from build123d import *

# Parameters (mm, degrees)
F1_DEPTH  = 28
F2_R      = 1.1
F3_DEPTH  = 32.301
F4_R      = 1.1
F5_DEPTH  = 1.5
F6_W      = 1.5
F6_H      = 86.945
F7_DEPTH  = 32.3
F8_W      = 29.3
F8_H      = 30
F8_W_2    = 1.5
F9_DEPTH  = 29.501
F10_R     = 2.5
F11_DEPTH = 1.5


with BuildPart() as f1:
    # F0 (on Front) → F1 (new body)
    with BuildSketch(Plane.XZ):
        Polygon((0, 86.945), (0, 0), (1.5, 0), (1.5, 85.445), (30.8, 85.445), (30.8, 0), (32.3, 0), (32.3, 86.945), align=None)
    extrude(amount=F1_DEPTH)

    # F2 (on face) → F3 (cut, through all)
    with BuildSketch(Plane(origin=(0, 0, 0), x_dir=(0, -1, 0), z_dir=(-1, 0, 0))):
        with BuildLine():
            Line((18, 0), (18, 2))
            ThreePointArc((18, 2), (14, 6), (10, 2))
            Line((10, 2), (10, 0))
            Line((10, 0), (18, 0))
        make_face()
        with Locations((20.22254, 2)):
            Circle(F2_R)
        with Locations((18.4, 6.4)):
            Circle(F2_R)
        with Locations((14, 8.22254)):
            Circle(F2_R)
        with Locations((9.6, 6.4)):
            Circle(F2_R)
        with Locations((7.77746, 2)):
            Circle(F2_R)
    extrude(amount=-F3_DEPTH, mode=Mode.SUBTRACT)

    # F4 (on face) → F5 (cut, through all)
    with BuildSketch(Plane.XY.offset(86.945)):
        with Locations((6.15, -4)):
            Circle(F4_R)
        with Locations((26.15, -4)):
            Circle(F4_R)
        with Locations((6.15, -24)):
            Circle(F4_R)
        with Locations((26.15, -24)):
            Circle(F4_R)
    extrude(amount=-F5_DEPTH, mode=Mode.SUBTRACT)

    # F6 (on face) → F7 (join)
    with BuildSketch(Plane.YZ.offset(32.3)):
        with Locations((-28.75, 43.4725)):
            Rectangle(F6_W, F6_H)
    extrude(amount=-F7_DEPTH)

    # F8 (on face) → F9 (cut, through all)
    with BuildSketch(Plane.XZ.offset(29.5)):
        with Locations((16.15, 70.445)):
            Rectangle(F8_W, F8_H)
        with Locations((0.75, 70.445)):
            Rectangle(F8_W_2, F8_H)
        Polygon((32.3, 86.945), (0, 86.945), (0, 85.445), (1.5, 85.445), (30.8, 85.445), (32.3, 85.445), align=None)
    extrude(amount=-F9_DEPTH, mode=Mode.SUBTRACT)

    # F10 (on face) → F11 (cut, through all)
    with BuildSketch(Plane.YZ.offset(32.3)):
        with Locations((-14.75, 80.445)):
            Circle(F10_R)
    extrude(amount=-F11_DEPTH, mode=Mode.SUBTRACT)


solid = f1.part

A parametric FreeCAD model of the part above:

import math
import FreeCAD as App
import Part
import Sketcher


def add_polygon(sketch, points):
    """Adds a closed chain of lines whose ends are joined by coincident constraints."""
    first, n = sketch.GeometryCount, len(points)
    for a, b in zip(points, points[1:] + points[:1]):
        sketch.addGeometry(Part.LineSegment(App.Vector(*a, 0), App.Vector(*b, 0)), False)
    for i in range(n):
        sketch.addConstraint(Sketcher.Constraint("Coincident", first + i, 2, first + (i + 1) % n, 1))

doc = App.newDocument("Part")
body = doc.addObject("PartDesign::Body", "Body")

sketch1 = doc.addObject("Sketcher::SketchObject", "Sketch")
body.addObject(sketch1)
sketch1.AttachmentSupport = (doc.XZ_Plane, [""])
sketch1.MapMode = "FlatFace"
add_polygon(sketch1, [(0, 86.9), (0, 0), (1.5, 0), (1.5, 85.4), (30.8, 85.4), (30.8, 0), (32.3, 0), (32.3, 86.9)])
sketch1.addConstraint(Sketcher.Constraint("Vertical", 0))
sketch1.addConstraint(Sketcher.Constraint("Horizontal", 1))
sketch1.addConstraint(Sketcher.Constraint("Vertical", 2))
sketch1.addConstraint(Sketcher.Constraint("Horizontal", 3))
sketch1.addConstraint(Sketcher.Constraint("Vertical", 4))
sketch1.addConstraint(Sketcher.Constraint("Horizontal", 5))
sketch1.addConstraint(Sketcher.Constraint("Vertical", 6))
sketch1.addConstraint(Sketcher.Constraint("Horizontal", 7))
sketch1.addConstraint(Sketcher.Constraint("Coincident", 0, 2, -1, 1))
sketch1.addConstraint(Sketcher.Constraint("PointOnObject", 4, 2, -1))
sketch1.addConstraint(Sketcher.Constraint("Equal", 1, 5))
sketch1.addConstraint(Sketcher.Constraint("DistanceX", 1, 1, 1, 2, 1.5))
sketch1.addConstraint(Sketcher.Constraint("DistanceX", 3, 1, 3, 2, 29.3))
sketch1.addConstraint(Sketcher.Constraint("DistanceY", 3, 2, 6, 2, 1.5))
sketch1.addConstraint(Sketcher.Constraint("DistanceY", 0, 2, 0, 1, 86.945))
pad1 = doc.addObject("PartDesign::Pad", "Pad")
body.addObject(pad1)
pad1.Profile = sketch1
pad1.Length = 28

sketch2 = doc.addObject("Sketcher::SketchObject", "Sketch001")
body.addObject(sketch2)
sketch2.AttachmentSupport = (doc.YZ_Plane, [""])
sketch2.MapMode = "FlatFace"
sketch2.addGeometry(Part.LineSegment(App.Vector(-18, 0, 0), App.Vector(-18, 2, 0)), False)
sketch2.addGeometry(Part.ArcOfCircle(Part.Circle(App.Vector(-14, 2, 0), App.Vector(0, 0, 1), 4), math.radians(0), math.radians(180)), False)
sketch2.addGeometry(Part.LineSegment(App.Vector(-10, 2, 0), App.Vector(-10, 0, 0)), False)
sketch2.addGeometry(Part.LineSegment(App.Vector(-10, 0, 0), App.Vector(-18, 0, 0)), False)
sketch2.addGeometry(Part.Circle(App.Vector(-20.2, 2, 0), App.Vector(0, 0, 1), 1.1), False)
sketch2.addGeometry(Part.Circle(App.Vector(-18.4, 6.4, 0), App.Vector(0, 0, 1), 1.1), False)
sketch2.addGeometry(Part.Circle(App.Vector(-14, 8.2, 0), App.Vector(0, 0, 1), 1.1), False)
sketch2.addGeometry(Part.Circle(App.Vector(-9.6, 6.4, 0), App.Vector(0, 0, 1), 1.1), False)
sketch2.addGeometry(Part.Circle(App.Vector(-7.8, 2, 0), App.Vector(0, 0, 1), 1.1), False)
sketch2.addConstraint(Sketcher.Constraint("Tangent", 0, 2, 1, 2))
sketch2.addConstraint(Sketcher.Constraint("Tangent", 1, 1, 2, 1))
sketch2.addConstraint(Sketcher.Constraint("Coincident", 2, 2, 3, 1))
sketch2.addConstraint(Sketcher.Constraint("Coincident", 3, 2, 0, 1))
sketch2.addConstraint(Sketcher.Constraint("Vertical", 0))
sketch2.addConstraint(Sketcher.Constraint("Vertical", 2))
sketch2.addConstraint(Sketcher.Constraint("Horizontal", 3))
sketch2.addConstraint(Sketcher.Constraint("Equal", 4, 5))
sketch2.addConstraint(Sketcher.Constraint("Equal", 5, 6))
sketch2.addConstraint(Sketcher.Constraint("Equal", 6, 7))
sketch2.addConstraint(Sketcher.Constraint("Equal", 7, 8))
sketch2.addConstraint(Sketcher.Constraint("PointOnObject", 2, 2, -1))
sketch2.addConstraint(Sketcher.Constraint("Horizontal", 1, 3, 4, 3))
sketch2.addConstraint(Sketcher.Constraint("Horizontal", 5, 3, 7, 3))
sketch2.addConstraint(Sketcher.Constraint("Horizontal", 4, 3, 8, 3))
sketch2.addConstraint(Sketcher.Constraint("Vertical", 1, 3, 6, 3))
sketch2.addConstraint(Sketcher.Constraint("Radius", 1, 4.0))
sketch2.addConstraint(Sketcher.Constraint("Diameter", 4, 2.2))
sketch2.addConstraint(Sketcher.Constraint("DistanceY", 0, 1, 0, 2, 2.0))
sketch2.addConstraint(Sketcher.Constraint("DistanceX", 1, 3, -1, 1, 14.0))
sketch2.addConstraint(Sketcher.Constraint("DistanceX", 5, 3, -1, 1, 18.4))
sketch2.addConstraint(Sketcher.Constraint("DistanceY", -1, 1, 5, 3, 6.4))
sketch2.addConstraint(Sketcher.Constraint("DistanceX", 7, 3, -1, 1, 9.6))
sketch2.addConstraint(Sketcher.Constraint("DistanceX", 4, 3, -1, 1, 20.22254))
sketch2.addConstraint(Sketcher.Constraint("DistanceY", -1, 1, 6, 3, 8.22254))
sketch2.addConstraint(Sketcher.Constraint("DistanceX", 8, 3, -1, 1, 7.77746))
pocket1 = doc.addObject("PartDesign::Pocket", "Pocket")
body.addObject(pocket1)
pocket1.Profile = sketch2
pocket1.Type = "ThroughAll"
pocket1.Reversed = True

sketch3 = doc.addObject("Sketcher::SketchObject", "Sketch002")
body.addObject(sketch3)
sketch3.AttachmentSupport = (doc.XY_Plane, [""])
sketch3.MapMode = "FlatFace"
sketch3.AttachmentOffset = App.Placement(App.Vector(0, 0, 86.945), App.Rotation())
sketch3.addGeometry(Part.Circle(App.Vector(6.2, -4, 0), App.Vector(0, 0, 1), 1.1), False)
sketch3.addGeometry(Part.Circle(App.Vector(26.1, -4, 0), App.Vector(0, 0, 1), 1.1), False)
sketch3.addGeometry(Part.Circle(App.Vector(6.2, -24, 0), App.Vector(0, 0, 1), 1.1), False)
sketch3.addGeometry(Part.Circle(App.Vector(26.1, -24, 0), App.Vector(0, 0, 1), 1.1), False)
sketch3.addConstraint(Sketcher.Constraint("Equal", 0, 1))
sketch3.addConstraint(Sketcher.Constraint("Equal", 1, 2))
sketch3.addConstraint(Sketcher.Constraint("Equal", 2, 3))
sketch3.addConstraint(Sketcher.Constraint("Horizontal", 0, 3, 1, 3))
sketch3.addConstraint(Sketcher.Constraint("Horizontal", 2, 3, 3, 3))
sketch3.addConstraint(Sketcher.Constraint("Vertical", 0, 3, 2, 3))
sketch3.addConstraint(Sketcher.Constraint("Vertical", 1, 3, 3, 3))
sketch3.addConstraint(Sketcher.Constraint("Diameter", 0, 2.2))
sketch3.addConstraint(Sketcher.Constraint("DistanceY", 0, 3, -1, 1, 4.0))
sketch3.addConstraint(Sketcher.Constraint("DistanceY", 2, 3, -1, 1, 24.0))
sketch3.addConstraint(Sketcher.Constraint("DistanceX", 0, 3, 1, 3, 20.0))
sketch3.addConstraint(Sketcher.Constraint("DistanceX", -1, 1, 0, 3, 6.15))
pocket2 = doc.addObject("PartDesign::Pocket", "Pocket001")
body.addObject(pocket2)
pocket2.Profile = sketch3
pocket2.Type = "ThroughAll"

sketch4 = doc.addObject("Sketcher::SketchObject", "Sketch003")
body.addObject(sketch4)
sketch4.AttachmentSupport = (doc.YZ_Plane, [""])
sketch4.MapMode = "FlatFace"
sketch4.AttachmentOffset = App.Placement(App.Vector(0, 0, 32.3), App.Rotation())
add_polygon(sketch4, [(-29.5, 86.9), (-29.5, 0), (-28, 0), (-28, 86.9)])
sketch4.addConstraint(Sketcher.Constraint("Vertical", 0))
sketch4.addConstraint(Sketcher.Constraint("Horizontal", 1))
sketch4.addConstraint(Sketcher.Constraint("Vertical", 2))
sketch4.addConstraint(Sketcher.Constraint("Horizontal", 3))
sketch4.addConstraint(Sketcher.Constraint("PointOnObject", 0, 2, -1))
sketch4.addConstraint(Sketcher.Constraint("DistanceX", 1, 1, 1, 2, 1.5))
sketch4.addConstraint(Sketcher.Constraint("DistanceX", 1, 2, -1, 1, 28.0))
sketch4.addConstraint(Sketcher.Constraint("DistanceY", 0, 2, 0, 1, 86.945))
pad2 = doc.addObject("PartDesign::Pad", "Pad001")
body.addObject(pad2)
pad2.Profile = sketch4
pad2.Length = 32.3
pad2.Reversed = True

sketch5 = doc.addObject("Sketcher::SketchObject", "Sketch004")
body.addObject(sketch5)
sketch5.AttachmentSupport = (doc.XZ_Plane, [""])
sketch5.MapMode = "FlatFace"
sketch5.AttachmentOffset = App.Placement(App.Vector(0, 0, 29.5), App.Rotation())
add_polygon(sketch5, [(30.8, 55.4), (30.8, 85.4), (32.3, 85.4), (32.3, 86.9), (0, 86.9), (0, 55.4)])
sketch5.addConstraint(Sketcher.Constraint("Vertical", 0))
sketch5.addConstraint(Sketcher.Constraint("Horizontal", 1))
sketch5.addConstraint(Sketcher.Constraint("Vertical", 2))
sketch5.addConstraint(Sketcher.Constraint("Horizontal", 3))
sketch5.addConstraint(Sketcher.Constraint("Vertical", 4))
sketch5.addConstraint(Sketcher.Constraint("Horizontal", 5))
sketch5.addConstraint(Sketcher.Constraint("PointOnObject", 3, 2, -2))
sketch5.addConstraint(Sketcher.Constraint("Equal", 1, 2))
sketch5.addConstraint(Sketcher.Constraint("DistanceY", 0, 1, 0, 2, 30.0))
sketch5.addConstraint(Sketcher.Constraint("DistanceX", 1, 1, 1, 2, 1.5))
sketch5.addConstraint(Sketcher.Constraint("DistanceX", 3, 2, 3, 1, 32.3))
sketch5.addConstraint(Sketcher.Constraint("DistanceY", -1, 1, 0, 2, 85.445))
pocket3 = doc.addObject("PartDesign::Pocket", "Pocket002")
body.addObject(pocket3)
pocket3.Profile = sketch5
pocket3.Type = "ThroughAll"

sketch6 = doc.addObject("Sketcher::SketchObject", "Sketch005")
body.addObject(sketch6)
sketch6.AttachmentSupport = (doc.YZ_Plane, [""])
sketch6.MapMode = "FlatFace"
sketch6.AttachmentOffset = App.Placement(App.Vector(0, 0, 32.3), App.Rotation())
sketch6.addGeometry(Part.Circle(App.Vector(-14.8, 80.4, 0), App.Vector(0, 0, 1), 2.5), False)
sketch6.addConstraint(Sketcher.Constraint("Diameter", 0, 5.0))
sketch6.addConstraint(Sketcher.Constraint("DistanceX", 0, 3, -1, 1, 14.75))
sketch6.addConstraint(Sketcher.Constraint("DistanceY", -1, 1, 0, 3, 80.445))
pocket4 = doc.addObject("PartDesign::Pocket", "Pocket003")
body.addObject(pocket4)
pocket4.Profile = sketch6
pocket4.Type = "ThroughAll"

doc.recompute()
